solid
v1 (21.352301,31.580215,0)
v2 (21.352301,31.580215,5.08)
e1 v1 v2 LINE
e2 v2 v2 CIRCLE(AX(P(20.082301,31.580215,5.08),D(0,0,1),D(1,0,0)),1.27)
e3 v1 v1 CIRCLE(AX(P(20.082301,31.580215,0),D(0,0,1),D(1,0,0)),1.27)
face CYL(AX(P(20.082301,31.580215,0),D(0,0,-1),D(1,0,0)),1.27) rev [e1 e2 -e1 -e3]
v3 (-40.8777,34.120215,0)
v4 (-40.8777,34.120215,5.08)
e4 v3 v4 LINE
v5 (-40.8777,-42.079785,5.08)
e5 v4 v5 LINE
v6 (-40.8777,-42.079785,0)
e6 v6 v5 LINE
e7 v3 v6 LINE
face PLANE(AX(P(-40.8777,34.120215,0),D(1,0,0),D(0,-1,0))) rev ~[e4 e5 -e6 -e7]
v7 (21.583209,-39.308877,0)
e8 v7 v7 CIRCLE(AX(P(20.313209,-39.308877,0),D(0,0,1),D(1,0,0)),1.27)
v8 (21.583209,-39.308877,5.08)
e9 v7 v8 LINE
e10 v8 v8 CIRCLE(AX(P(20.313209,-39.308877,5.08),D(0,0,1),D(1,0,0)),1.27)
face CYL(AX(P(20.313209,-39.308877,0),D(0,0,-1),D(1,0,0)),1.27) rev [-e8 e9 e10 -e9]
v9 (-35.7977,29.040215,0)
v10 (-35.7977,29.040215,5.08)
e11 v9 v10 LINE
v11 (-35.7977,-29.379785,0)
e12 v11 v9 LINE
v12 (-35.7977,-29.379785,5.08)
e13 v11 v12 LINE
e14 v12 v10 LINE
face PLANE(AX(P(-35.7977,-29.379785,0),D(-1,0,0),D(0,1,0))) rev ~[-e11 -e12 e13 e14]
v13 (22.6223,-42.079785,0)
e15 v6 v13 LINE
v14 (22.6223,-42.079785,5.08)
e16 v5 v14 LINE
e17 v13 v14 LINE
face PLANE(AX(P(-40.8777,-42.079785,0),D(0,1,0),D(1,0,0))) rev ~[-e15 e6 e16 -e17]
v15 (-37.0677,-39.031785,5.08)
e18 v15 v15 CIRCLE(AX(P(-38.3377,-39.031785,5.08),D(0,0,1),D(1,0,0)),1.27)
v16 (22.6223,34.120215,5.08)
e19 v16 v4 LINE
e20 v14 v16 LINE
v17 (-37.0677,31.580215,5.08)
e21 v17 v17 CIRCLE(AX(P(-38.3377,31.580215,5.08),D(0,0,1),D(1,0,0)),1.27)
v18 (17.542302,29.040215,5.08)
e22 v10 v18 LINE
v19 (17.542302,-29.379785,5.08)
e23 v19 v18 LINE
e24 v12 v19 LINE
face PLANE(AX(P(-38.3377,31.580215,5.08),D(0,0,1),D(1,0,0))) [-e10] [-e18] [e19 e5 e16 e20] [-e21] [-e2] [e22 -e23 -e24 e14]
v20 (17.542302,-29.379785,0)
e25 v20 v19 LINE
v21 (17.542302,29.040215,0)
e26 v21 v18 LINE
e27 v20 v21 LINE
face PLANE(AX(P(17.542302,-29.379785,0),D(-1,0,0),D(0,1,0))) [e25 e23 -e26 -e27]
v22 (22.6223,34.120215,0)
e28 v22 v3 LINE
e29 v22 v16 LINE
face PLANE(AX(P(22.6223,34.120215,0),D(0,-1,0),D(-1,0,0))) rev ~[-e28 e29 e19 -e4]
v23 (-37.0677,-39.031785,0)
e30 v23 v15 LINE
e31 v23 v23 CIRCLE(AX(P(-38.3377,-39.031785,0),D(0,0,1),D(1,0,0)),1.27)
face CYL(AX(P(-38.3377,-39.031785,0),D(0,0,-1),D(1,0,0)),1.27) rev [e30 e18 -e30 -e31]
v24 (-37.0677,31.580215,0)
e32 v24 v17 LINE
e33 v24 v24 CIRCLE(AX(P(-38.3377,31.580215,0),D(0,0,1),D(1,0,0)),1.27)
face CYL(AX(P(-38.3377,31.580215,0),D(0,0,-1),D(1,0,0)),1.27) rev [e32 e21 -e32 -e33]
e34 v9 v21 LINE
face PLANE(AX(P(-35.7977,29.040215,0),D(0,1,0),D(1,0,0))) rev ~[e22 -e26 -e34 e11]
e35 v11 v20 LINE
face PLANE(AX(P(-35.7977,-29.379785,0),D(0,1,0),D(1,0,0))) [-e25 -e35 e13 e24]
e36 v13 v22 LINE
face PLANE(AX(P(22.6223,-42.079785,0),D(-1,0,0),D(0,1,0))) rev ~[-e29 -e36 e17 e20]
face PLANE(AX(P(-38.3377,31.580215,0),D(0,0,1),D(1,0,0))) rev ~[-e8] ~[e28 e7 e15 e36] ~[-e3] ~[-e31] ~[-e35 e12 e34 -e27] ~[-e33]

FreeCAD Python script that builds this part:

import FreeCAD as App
import Part
import Sketcher
from FreeCAD import Vector
Q = App.Units.Quantity


def add_polygon(sketch, points):
    """Adds a closed chain of lines whose ends are joined by coincident constraints."""
    first, n = sketch.GeometryCount, len(points)
    for a, b in zip(points, points[1:] + points[:1]):
        sketch.addGeometry(Part.LineSegment(App.Vector(*a, 0), App.Vector(*b, 0)), False)
    for i in range(n):
        sketch.addConstraint(Sketcher.Constraint("Coincident", first + i, 2, first + (i + 1) % n, 1))

doc = App.newDocument("Part")
body = doc.addObject("PartDesign::Body", "Body")

sketch1 = body.newObject("Sketcher::SketchObject", "Sketch")
sketch1.AttachmentSupport = (doc.getObject("XY_Plane"), [""])
sketch1.MapMode = "FlatFace"
add_polygon(sketch1, [(-40.9, -42.1), (22.6, -42.1), (22.6, 34.1), (-40.9, 34.1)])
sketch1.addGeometry(Part.Circle(Vector(-38.3, -39, 0), Vector(0, 0, 1), 1.3), False)
sketch1.addGeometry(Part.Circle(Vector(20.3, -39.3, 0), Vector(0, 0, 1), 1.3), False)
add_polygon(sketch1, [(17.5, -29.4), (-35.8, -29.4), (-35.8, 29), (17.5, 29)])
sketch1.addGeometry(Part.Circle(Vector(-38.3, 31.6, 0), Vector(0, 0, 1), 1.3), False)
sketch1.addGeometry(Part.Circle(Vector(20.1, 31.6, 0), Vector(0, 0, 1), 1.3), False)
sketch1.addConstraint([
    Sketcher.Constraint("Horizontal", 0),
    Sketcher.Constraint("Vertical", 1),
    Sketcher.Constraint("Horizontal", 2),
    Sketcher.Constraint("Vertical", 3),
    Sketcher.Constraint("Horizontal", 6),
    Sketcher.Constraint("Vertical", 7),
    Sketcher.Constraint("Horizontal", 8),
    Sketcher.Constraint("Vertical", 9),
    Sketcher.Constraint("Equal", 4, 5),
    Sketcher.Constraint("Equal", 5, 10),
    Sketcher.Constraint("Equal", 10, 11),
    Sketcher.Constraint("Horizontal", 10, 3, 11, 3),
    Sketcher.Constraint("Vertical", 4, 3, 10, 3),
    Sketcher.Constraint("Diameter", 4, Q("0.1 in")),
    Sketcher.Constraint("DistanceY", 1, 1, 1, 2, Q("3 in")),
    Sketcher.Constraint("DistanceX", 0, 1, 0, 2, Q("2.5 in")),
    Sketcher.Constraint("DistanceX", 6, 2, 6, 1, Q("2.1000001 in")),
    Sketcher.Constraint("DistanceY", 7, 1, 7, 2, Q("2.3 in")),
    Sketcher.Constraint("DistanceX", 10, 3, 11, 3, Q("2.3 in")),
    Sketcher.Constraint("DistanceX", 4, 3, 0, 2, Q("2.4 in")),
    Sketcher.Constraint("DistanceY", 0, 2, 11, 3, Q("2.9 in")),
    Sketcher.Constraint("DistanceX", 4, 3, 6, 2, Q("0.1 in")),
    Sketcher.Constraint("DistanceY", 3, 2, 6, 2, Q("0.5 in")),
    Sketcher.Constraint("DistanceY", 4, 3, 10, 3, Q("2.78 in")),
    Sketcher.Constraint("DistanceX", 4, 3, -1, 1, 38.3377),
    Sketcher.Constraint("DistanceX", -1, 1, 5, 3, 20.313209),
    Sketcher.Constraint("DistanceY", 5, 3, 1, 2, 73.429092),
    Sketcher.Constraint("DistanceY", 4, 3, -1, 1, 39.031785),
])
pad1 = body.newObject("PartDesign::Pad", "Pad")
pad1.Profile = sketch1
pad1.Length = Q("0.2 in")

doc.recompute()
